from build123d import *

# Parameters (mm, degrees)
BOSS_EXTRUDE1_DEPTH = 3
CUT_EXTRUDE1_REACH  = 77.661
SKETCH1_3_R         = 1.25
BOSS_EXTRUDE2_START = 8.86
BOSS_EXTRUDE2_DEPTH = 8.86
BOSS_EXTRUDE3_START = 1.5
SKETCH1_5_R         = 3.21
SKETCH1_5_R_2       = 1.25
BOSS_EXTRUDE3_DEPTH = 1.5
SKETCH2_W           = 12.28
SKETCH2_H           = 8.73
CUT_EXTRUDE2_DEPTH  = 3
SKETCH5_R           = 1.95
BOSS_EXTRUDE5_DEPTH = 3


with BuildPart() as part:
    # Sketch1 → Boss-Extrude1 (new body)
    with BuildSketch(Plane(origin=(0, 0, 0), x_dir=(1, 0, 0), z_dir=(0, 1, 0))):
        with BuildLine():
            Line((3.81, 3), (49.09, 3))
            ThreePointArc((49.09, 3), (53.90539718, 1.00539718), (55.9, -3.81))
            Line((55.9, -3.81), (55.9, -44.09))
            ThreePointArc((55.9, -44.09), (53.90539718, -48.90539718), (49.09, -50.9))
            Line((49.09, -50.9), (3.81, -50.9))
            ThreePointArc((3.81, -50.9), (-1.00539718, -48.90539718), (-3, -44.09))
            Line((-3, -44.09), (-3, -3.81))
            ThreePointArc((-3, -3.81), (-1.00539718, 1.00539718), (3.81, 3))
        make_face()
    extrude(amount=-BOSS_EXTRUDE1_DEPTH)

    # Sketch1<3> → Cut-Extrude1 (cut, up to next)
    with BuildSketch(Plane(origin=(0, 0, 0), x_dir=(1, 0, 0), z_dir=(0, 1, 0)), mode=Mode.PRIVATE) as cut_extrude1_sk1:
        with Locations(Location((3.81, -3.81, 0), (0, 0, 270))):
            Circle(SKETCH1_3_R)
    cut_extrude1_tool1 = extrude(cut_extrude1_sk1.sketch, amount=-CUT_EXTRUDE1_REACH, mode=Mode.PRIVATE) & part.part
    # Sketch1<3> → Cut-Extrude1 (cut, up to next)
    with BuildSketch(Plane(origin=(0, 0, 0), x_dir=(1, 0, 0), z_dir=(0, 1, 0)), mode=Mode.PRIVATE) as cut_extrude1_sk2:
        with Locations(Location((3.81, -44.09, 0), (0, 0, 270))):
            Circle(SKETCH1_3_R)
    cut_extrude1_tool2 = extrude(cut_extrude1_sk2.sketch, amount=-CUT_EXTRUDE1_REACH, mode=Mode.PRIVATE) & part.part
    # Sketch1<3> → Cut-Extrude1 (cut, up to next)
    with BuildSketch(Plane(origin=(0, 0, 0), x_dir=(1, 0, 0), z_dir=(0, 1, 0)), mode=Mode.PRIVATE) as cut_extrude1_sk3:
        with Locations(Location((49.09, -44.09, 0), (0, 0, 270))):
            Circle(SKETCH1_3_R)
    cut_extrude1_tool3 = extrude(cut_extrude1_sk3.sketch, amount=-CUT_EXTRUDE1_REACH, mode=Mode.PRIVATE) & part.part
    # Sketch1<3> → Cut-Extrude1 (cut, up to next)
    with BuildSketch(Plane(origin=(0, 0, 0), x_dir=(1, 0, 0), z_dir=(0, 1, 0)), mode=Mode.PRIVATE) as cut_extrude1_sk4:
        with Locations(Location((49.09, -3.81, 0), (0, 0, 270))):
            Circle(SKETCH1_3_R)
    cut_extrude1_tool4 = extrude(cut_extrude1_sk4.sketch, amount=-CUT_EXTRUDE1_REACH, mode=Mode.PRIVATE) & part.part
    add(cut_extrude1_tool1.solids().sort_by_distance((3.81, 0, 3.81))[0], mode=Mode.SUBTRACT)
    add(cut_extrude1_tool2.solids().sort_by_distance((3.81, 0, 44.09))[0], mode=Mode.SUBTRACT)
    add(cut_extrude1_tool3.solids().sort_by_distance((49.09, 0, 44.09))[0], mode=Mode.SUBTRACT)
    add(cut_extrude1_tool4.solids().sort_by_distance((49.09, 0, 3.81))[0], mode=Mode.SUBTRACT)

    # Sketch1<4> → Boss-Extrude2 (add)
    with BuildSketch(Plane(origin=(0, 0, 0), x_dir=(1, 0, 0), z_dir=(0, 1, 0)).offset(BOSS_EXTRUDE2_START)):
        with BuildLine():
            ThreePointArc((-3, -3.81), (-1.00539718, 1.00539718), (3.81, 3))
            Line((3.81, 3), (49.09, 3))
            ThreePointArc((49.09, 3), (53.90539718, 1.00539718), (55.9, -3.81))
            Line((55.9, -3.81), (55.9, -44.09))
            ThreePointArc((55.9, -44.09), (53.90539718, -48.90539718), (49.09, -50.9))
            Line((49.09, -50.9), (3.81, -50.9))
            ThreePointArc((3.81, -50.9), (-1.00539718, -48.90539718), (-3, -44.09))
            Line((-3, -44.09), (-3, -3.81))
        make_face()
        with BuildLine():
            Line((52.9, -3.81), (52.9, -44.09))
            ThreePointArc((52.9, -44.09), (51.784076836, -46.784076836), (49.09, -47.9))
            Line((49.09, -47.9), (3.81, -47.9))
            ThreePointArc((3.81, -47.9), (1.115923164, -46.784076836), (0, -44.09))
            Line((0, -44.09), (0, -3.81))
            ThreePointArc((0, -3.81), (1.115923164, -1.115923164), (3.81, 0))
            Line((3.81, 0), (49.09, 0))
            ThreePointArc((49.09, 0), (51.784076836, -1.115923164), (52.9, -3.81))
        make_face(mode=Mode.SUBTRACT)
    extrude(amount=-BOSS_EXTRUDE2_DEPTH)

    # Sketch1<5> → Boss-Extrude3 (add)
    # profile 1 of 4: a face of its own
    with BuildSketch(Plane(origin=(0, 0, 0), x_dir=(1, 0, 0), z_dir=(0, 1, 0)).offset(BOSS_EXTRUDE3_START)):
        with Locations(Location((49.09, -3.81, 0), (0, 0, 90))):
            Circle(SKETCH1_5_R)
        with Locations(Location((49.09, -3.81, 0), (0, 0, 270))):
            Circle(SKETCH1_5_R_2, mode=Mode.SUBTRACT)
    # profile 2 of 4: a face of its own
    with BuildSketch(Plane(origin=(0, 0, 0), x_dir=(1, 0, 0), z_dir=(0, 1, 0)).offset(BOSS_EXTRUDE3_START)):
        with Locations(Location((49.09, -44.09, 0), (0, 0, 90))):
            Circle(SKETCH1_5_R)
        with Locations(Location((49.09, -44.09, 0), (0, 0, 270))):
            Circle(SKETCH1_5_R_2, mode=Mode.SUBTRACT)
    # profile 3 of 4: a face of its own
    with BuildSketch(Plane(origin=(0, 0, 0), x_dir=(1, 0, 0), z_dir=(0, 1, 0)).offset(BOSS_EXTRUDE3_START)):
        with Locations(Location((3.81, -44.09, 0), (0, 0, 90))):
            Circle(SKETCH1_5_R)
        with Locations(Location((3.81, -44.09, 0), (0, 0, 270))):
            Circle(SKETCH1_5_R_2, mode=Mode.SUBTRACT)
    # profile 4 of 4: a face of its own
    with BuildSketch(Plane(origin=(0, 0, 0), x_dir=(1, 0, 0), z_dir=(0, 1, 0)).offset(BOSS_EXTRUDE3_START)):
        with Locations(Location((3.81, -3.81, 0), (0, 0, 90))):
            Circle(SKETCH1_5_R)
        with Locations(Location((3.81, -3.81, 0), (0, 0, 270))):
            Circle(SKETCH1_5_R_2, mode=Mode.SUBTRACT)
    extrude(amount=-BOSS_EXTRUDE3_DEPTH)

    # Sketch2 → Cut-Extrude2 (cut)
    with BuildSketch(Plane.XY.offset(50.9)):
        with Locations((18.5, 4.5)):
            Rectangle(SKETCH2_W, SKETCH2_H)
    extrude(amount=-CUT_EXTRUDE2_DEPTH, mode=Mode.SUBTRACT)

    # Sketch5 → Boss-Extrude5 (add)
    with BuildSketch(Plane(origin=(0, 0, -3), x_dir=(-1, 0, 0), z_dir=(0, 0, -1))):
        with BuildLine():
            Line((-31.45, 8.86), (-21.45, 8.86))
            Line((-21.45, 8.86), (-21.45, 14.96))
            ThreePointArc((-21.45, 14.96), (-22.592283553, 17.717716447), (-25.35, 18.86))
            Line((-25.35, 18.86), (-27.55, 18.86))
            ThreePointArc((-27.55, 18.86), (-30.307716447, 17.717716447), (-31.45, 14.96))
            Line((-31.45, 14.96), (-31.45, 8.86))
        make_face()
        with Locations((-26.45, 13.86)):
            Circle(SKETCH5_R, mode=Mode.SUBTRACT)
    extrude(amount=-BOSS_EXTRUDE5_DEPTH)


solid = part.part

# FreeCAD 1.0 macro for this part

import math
import FreeCAD as App
import Part
import Sketcher

V = App.Vector
Q = App.Units.Quantity

doc = App.newDocument("Part")
body = doc.addObject("PartDesign::Body", "Body")

sketch1 = body.newObject("Sketcher::SketchObject", "Sketch")
sketch1.AttachmentSupport = (doc.getObject("XZ_Plane"), [""])
sketch1.MapMode = "FlatFace"
sketch1.addGeometry([
    Part.LineSegment(V(49, -3, 0), V(4, -3, 0)),
    Part.ArcOfCircle(Part.Circle(V(4, 4, 0), V(0, 0, 1), 7), math.radians(180), math.radians(270)),
    Part.LineSegment(V(-3, 4, 0), V(-3, 44, 0)),
    Part.ArcOfCircle(Part.Circle(V(4, 44, 0), V(0, 0, 1), 7), math.radians(90), math.radians(180)),
    Part.LineSegment(V(4, 51, 0), V(49, 51, 0)),
    Part.ArcOfCircle(Part.Circle(V(49, 44, 0), V(0, 0, 1), 7), math.radians(0), math.radians(90)),
    Part.LineSegment(V(56, 44, 0), V(56, 4, 0)),
    Part.ArcOfCircle(Part.Circle(V(49, 4, 0), V(0, 0, 1), 7), math.radians(-90), math.radians(0)),
], False)
sketch1.addConstraint([
    Sketcher.Constraint("Tangent", 0, 2, 1, 2),
    Sketcher.Constraint("Tangent", 1, 1, 2, 1),
    Sketcher.Constraint("Tangent", 2, 2, 3, 2),
    Sketcher.Constraint("Tangent", 3, 1, 4, 1),
    Sketcher.Constraint("Tangent", 4, 2, 5, 2),
    Sketcher.Constraint("Tangent", 5, 1, 6, 1),
    Sketcher.Constraint("Tangent", 6, 2, 7, 2),
    Sketcher.Constraint("Tangent", 7, 1, 0, 1),
    Sketcher.Constraint("Horizontal", 0),
    Sketcher.Constraint("Vertical", 2),
    Sketcher.Constraint("Horizontal", 4),
    Sketcher.Constraint("Vertical", 6),
    Sketcher.Constraint("Equal", 1, 3),
    Sketcher.Constraint("Equal", 3, 5),
    Sketcher.Constraint("Equal", 5, 7),
    Sketcher.Constraint("Radius", 1, Q("6.81 mm")),
    Sketcher.Constraint("DistanceY", 0, 2, -1, 1, Q("3 mm")),
    Sketcher.Constraint("DistanceX", 1, 1, -1, 1, Q("3 mm")),
    Sketcher.Constraint("DistanceX", 0, 2, 0, 1, Q("45.28 mm")),
    Sketcher.Constraint("DistanceY", 2, 1, 2, 2, Q("40.28 mm")),
])
pad1 = body.newObject("PartDesign::Pad", "Pad")
pad1.Profile = sketch1
pad1.Length = 3

sketch2 = body.newObject("Sketcher::SketchObject", "Sketch001")
sketch2.AttachmentSupport = (doc.getObject("XZ_Plane"), [""])
sketch2.MapMode = "FlatFace"
sketch2.addGeometry(Part.Circle(V(3.8, 3.8, 0), V(0, 0, 1), 1.2), False)
sketch2.addConstraint([
    Sketcher.Constraint("Diameter", 0, Q("2.5 mm")),
    Sketcher.Constraint("DistanceX", -1, 1, 0, 3, Q("3.81 mm")),
    Sketcher.Constraint("DistanceY", -1, 1, 0, 3, Q("3.81 mm")),
])
pocket1 = body.newObject("PartDesign::Pocket", "Pocket")
pocket1.Profile = sketch2
pocket1.Type = "UpToFirst"
pocket1.Reversed = True

sketch3 = body.newObject("Sketcher::SketchObject", "Sketch002")
sketch3.AttachmentSupport = (doc.getObject("XZ_Plane"), [""])
sketch3.MapMode = "FlatFace"
sketch3.addGeometry(Part.Circle(V(3.8, 44.1, 0), V(0, 0, 1), 1.2), False)
sketch3.addConstraint([
    Sketcher.Constraint("Diameter", 0, Q("2.5 mm")),
    Sketcher.Constraint("DistanceX", -1, 1, 0, 3, Q("3.81 mm")),
    Sketcher.Constraint("DistanceY", -1, 1, 0, 3, Q("44.09 mm")),
])
pocket2 = body.newObject("PartDesign::Pocket", "Pocket001")
pocket2.Profile = sketch3
pocket2.Type = "UpToFirst"
pocket2.Reversed = True

sketch4 = body.newObject("Sketcher::SketchObject", "Sketch003")
sketch4.AttachmentSupport = (doc.getObject("XZ_Plane"), [""])
sketch4.MapMode = "FlatFace"
sketch4.addGeometry(Part.Circle(V(49.1, 44.1, 0), V(0, 0, 1), 1.2), False)
sketch4.addConstraint([
    Sketcher.Constraint("Diameter", 0, Q("2.5 mm")),
    Sketcher.Constraint("DistanceX", -1, 1, 0, 3, Q("49.09 mm")),
    Sketcher.Constraint("DistanceY", -1, 1, 0, 3, Q("44.09 mm")),
])
pocket3 = body.newObject("PartDesign::Pocket", "Pocket002")
pocket3.Profile = sketch4
pocket3.Type = "UpToFirst"
pocket3.Reversed = True

sketch5 = body.newObject("Sketcher::SketchObject", "Sketch004")
sketch5.AttachmentSupport = (doc.getObject("XZ_Plane"), [""])
sketch5.MapMode = "FlatFace"
sketch5.addGeometry(Part.Circle(V(49.1, 3.8, 0), V(0, 0, 1), 1.2), False)
sketch5.addConstraint([
    Sketcher.Constraint("Diameter", 0, Q("2.5 mm")),
    Sketcher.Constraint("DistanceX", -1, 1, 0, 3, Q("49.09 mm")),
    Sketcher.Constraint("DistanceY", -1, 1, 0, 3, Q("3.81 mm")),
])
pocket4 = body.newObject("PartDesign::Pocket", "Pocket003")
pocket4.Profile = sketch5
pocket4.Type = "UpToFirst"
pocket4.Reversed = True

sketch6 = body.newObject("Sketcher::SketchObject", "Sketch005")
sketch6.AttachmentSupport = (doc.getObject("XZ_Plane"), [""])
sketch6.MapMode = "FlatFace"
sketch6.AttachmentOffset = App.Placement(V(0, 0, -8.86), App.Rotation())
sketch6.addGeometry([
    Part.ArcOfCircle(Part.Circle(V(3.8, 3.8, 0), V(0, 0, 1), 6.8), math.radians(180), math.radians(270)),
    Part.LineSegment(V(-3, 3.8, 0), V(-3, 44.1, 0)),
    Part.ArcOfCircle(Part.Circle(V(3.8, 44.1, 0), V(0, 0, 1), 6.8), math.radians(90), math.radians(180)),
    Part.LineSegment(V(3.8, 50.9, 0), V(49.1, 50.9, 0)),
    Part.ArcOfCircle(Part.Circle(V(49.1, 44.1, 0), V(0, 0, 1), 6.8), math.radians(0), math.radians(90)),
    Part.LineSegment(V(55.9, 44.1, 0), V(55.9, 3.8, 0)),
    Part.ArcOfCircle(Part.Circle(V(49.1, 3.8, 0), V(0, 0, 1), 6.8), math.radians(-90), math.radians(0)),
    Part.LineSegment(V(49.1, -3, 0), V(3.8, -3, 0)),
    Part.LineSegment(V(52.9, 3.8, 0), V(52.9, 44.1, 0)),
    Part.ArcOfCircle(Part.Circle(V(49.1, 44.1, 0), V(0, 0, 1), 3.8), math.radians(0), math.radians(90)),
    Part.LineSegment(V(49.1, 47.9, 0), V(3.8, 47.9, 0)),
    Part.ArcOfCircle(Part.Circle(V(3.8, 44.1, 0), V(0, 0, 1), 3.8), math.radians(90), math.radians(180)),
    Part.LineSegment(V(0, 44.1, 0), V(0, 3.8, 0)),
    Part.ArcOfCircle(Part.Circle(V(3.8, 3.8, 0), V(0, 0, 1), 3.8), math.radians(-180), math.radians(-90)),
    Part.LineSegment(V(3.8, 0, 0), V(49.1, 0, 0)),
    Part.ArcOfCircle(Part.Circle(V(49.1, 3.8, 0), V(0, 0, 1), 3.8), math.radians(-90), math.radians(0)),
], False)
sketch6.addConstraint([
    Sketcher.Constraint("Tangent", 0, 1, 1, 1),
    Sketcher.Constraint("Tangent", 1, 2, 2, 2),
    Sketcher.Constraint("Tangent", 2, 1, 3, 1),
    Sketcher.Constraint("Tangent", 3, 2, 4, 2),
    Sketcher.Constraint("Tangent", 4, 1, 5, 1),
    Sketcher.Constraint("Tangent", 5, 2, 6, 2),
    Sketcher.Constraint("Tangent", 6, 1, 7, 1),
    Sketcher.Constraint("Tangent", 7, 2, 0, 2),
    Sketcher.Constraint("Tangent", 8, 2, 9, 1),
    Sketcher.Constraint("Tangent", 9, 2, 10, 1),
    Sketcher.Constraint("Tangent", 10, 2, 11, 1),
    Sketcher.Constraint("Tangent", 11, 2, 12, 1),
    Sketcher.Constraint("Tangent", 12, 2, 13, 1),
    Sketcher.Constraint("Tangent", 13, 2, 14, 1),
    Sketcher.Constraint("Tangent", 14, 2, 15, 1),
    Sketcher.Constraint("Tangent", 15, 2, 8, 1),
    Sketcher.Constraint("Vertical", 1),
    Sketcher.Constraint("Horizontal", 3),
    Sketcher.Constraint("Vertical", 5),
    Sketcher.Constraint("Horizontal", 7),
    Sketcher.Constraint("Vertical", 8),
    Sketcher.Constraint("Horizontal", 10),
    Sketcher.Constraint("Vertical", 12),
    Sketcher.Constraint("Horizontal", 14),
    Sketcher.Constraint("Coincident", 9, 3, 4, 3),
    Sketcher.Constraint("Coincident", 11, 3, 2, 3),
    Sketcher.Constraint("Coincident", 13, 3, 0, 3),
    Sketcher.Constraint("Equal", 0, 2),
    Sketcher.Constraint("Equal", 2, 4),
    Sketcher.Constraint("Equal", 4, 6),
    Sketcher.Constraint("Equal", 13, 15),
    Sketcher.Constraint("PointOnObject", 11, 2, -2),
    Sketcher.Constraint("PointOnObject", 13, 2, -1),
    Sketcher.Constraint("Radius", 0, Q("6.81 mm")),
    Sketcher.Constraint("Radius", 9, Q("3.81 mm")),
    Sketcher.Constraint("DistanceX", 3, 1, 3, 2, Q("45.28 mm")),
    Sketcher.Constraint("DistanceY", 1, 1, 1, 2, Q("40.28 mm")),
])
pad2 = body.newObject("PartDesign::Pad", "Pad001")
pad2.Profile = sketch6
pad2.Length = 8.86

sketch7 = body.newObject("Sketcher::SketchObject", "Sketch006")
sketch7.AttachmentSupport = (doc.getObject("XZ_Plane"), [""])
sketch7.MapMode = "FlatFace"
sketch7.AttachmentOffset = App.Placement(V(0, 0, -1.5), App.Rotation())
sketch7.addGeometry([
    Part.Circle(V(49.1, 3.8, 0), V(0, 0, 1), 3.2),
    Part.Circle(V(49.1, 3.8, 0), V(0, 0, 1), 1.2),
    Part.Circle(V(49.1, 44.1, 0), V(0, 0, 1), 3.2),
    Part.Circle(V(49.1, 44.1, 0), V(0, 0, 1), 1.2),
    Part.Circle(V(3.8, 44.1, 0), V(0, 0, 1), 3.2),
    Part.Circle(V(3.8, 44.1, 0), V(0, 0, 1), 1.2),
    Part.Circle(V(3.8, 3.8, 0), V(0, 0, 1), 3.2),
    Part.Circle(V(3.8, 3.8, 0), V(0, 0, 1), 1.2),
], False)
sketch7.addConstraint([
    Sketcher.Constraint("Coincident", 1, 3, 0, 3),
    Sketcher.Constraint("Coincident", 3, 3, 2, 3),
    Sketcher.Constraint("Coincident", 5, 3, 4, 3),
    Sketcher.Constraint("Coincident", 7, 3, 6, 3),
    Sketcher.Constraint("Equal", 0, 2),
    Sketcher.Constraint("Equal", 1, 3),
    Sketcher.Constraint("Equal", 2, 4),
    Sketcher.Constraint("Equal", 3, 5),
    Sketcher.Constraint("Equal", 4, 6),
    Sketcher.Constraint("Equal", 5, 7),
    Sketcher.Constraint("Horizontal", 3, 3, 4, 3),
    Sketcher.Constraint("Horizontal", 1, 3, 6, 3),
    Sketcher.Constraint("Vertical", 1, 3, 2, 3),
    Sketcher.Constraint("Vertical", 5, 3, 6, 3),
    Sketcher.Constraint("Diameter", 1, Q("2.5 mm")),
    Sketcher.Constraint("Diameter", 0, Q("6.42 mm")),
    Sketcher.Constraint("DistanceX", -1, 1, 0, 3, Q("49.09 mm")),
    Sketcher.Constraint("DistanceY", -1, 1, 0, 3, Q("3.81 mm")),
    Sketcher.Constraint("DistanceY", -1, 1, 2, 3, Q("44.09 mm")),
    Sketcher.Constraint("DistanceX", -1, 1, 4, 3, Q("3.81 mm")),
])
pad3 = body.newObject("PartDesign::Pad", "Pad002")
pad3.Profile = sketch7
pad3.Length = 1.5

sketch8 = body.newObject("Sketcher::SketchObject", "Sketch007")
sketch8.AttachmentSupport = (doc.getObject("XY_Plane"), [""])
sketch8.MapMode = "FlatFace"
sketch8.AttachmentOffset = App.Placement(V(0, 0, 50.9), App.Rotation())
sketch8.addGeometry([
    Part.LineSegment(V(12, 9, 0), V(12, 0, 0)),
    Part.LineSegment(V(12, 0, 0), V(25, 0, 0)),
    Part.LineSegment(V(25, 0, 0), V(25, 9, 0)),
    Part.LineSegment(V(25, 9, 0), V(12, 9, 0)),
], False)
sketch8.addConstraint([
    Sketcher.Constraint("Coincident", 0, 2, 1, 1),
    Sketcher.Constraint("Coincident", 1, 2, 2, 1),
    Sketcher.Constraint("Coincident", 2, 2, 3, 1),
    Sketcher.Constraint("Coincident", 3, 2, 0, 1),
    Sketcher.Constraint("Vertical", 0),
    Sketcher.Constraint("Horizontal", 1),
    Sketcher.Constraint("Vertical", 2),
    Sketcher.Constraint("Horizontal", 3),
    Sketcher.Constraint("DistanceX", 1, 1, 1, 2, Q("12.28 mm")),
    Sketcher.Constraint("DistanceY", 0, 2, 0, 1, Q("8.73 mm")),
    Sketcher.Constraint("DistanceX", -1, 1, 0, 2, Q("12.36 mm")),
    Sketcher.Constraint("DistanceY", -1, 1, 0, 2, Q("0.135 mm")),
])
pocket5 = body.newObject("PartDesign::Pocket", "Pocket004")
pocket5.Profile = sketch8
pocket5.Length = 3

sketch9 = body.newObject("Sketcher::SketchObject", "Sketch008")
sketch9.AttachmentSupport = (doc.getObject("XY_Plane"), [""])
sketch9.MapMode = "FlatFace"
sketch9.AttachmentOffset = App.Placement(V(0, 0, -3), App.Rotation())
sketch9.addGeometry([
    Part.LineSegment(V(31.4, 8.9, 0), V(21.4, 8.9, 0)),
    Part.LineSegment(V(21.4, 8.9, 0), V(21.4, 15, 0)),
    Part.ArcOfCircle(Part.Circle(V(25.3, 15, 0), V(0, 0, 1), 3.9), math.radians(90), math.radians(180)),
    Part.LineSegment(V(25.4, 18.9, 0), V(27.6, 18.9, 0)),
    Part.ArcOfCircle(Part.Circle(V(27.6, 15, 0), V(0, 0, 1), 3.9), math.radians(0), math.radians(90)),
    Part.LineSegment(V(31.4, 15, 0), V(31.4, 8.9, 0)),
    Part.Circle(V(26.4, 13.9, 0), V(0, 0, 1), 1.9),
], False)
sketch9.addConstraint([
    Sketcher.Constraint("Coincident", 0, 2, 1, 1),
    Sketcher.Constraint("Tangent", 1, 2, 2, 2),
    Sketcher.Constraint("Tangent", 2, 1, 3, 1),
    Sketcher.Constraint("Tangent", 3, 2, 4, 2),
    Sketcher.Constraint("Tangent", 4, 1, 5, 1),
    Sketcher.Constraint("Coincident", 5, 2, 0, 1),
    Sketcher.Constraint("Horizontal", 0),
    Sketcher.Constraint("Vertical", 1),
    Sketcher.Constraint("Horizontal", 3),
    Sketcher.Constraint("Vertical", 5),
    Sketcher.Constraint("Equal", 2, 4),
    Sketcher.Constraint("Diameter", 6, Q("3.9 mm")),
    Sketcher.Constraint("Radius", 2, Q("3.9 mm")),
    Sketcher.Constraint("DistanceX", 0, 2, 0, 1, Q("10 mm")),
    Sketcher.Constraint("DistanceY", 1, 1, 1, 2, Q("6.1 mm")),
    Sketcher.Constraint("DistanceX", 0, 2, 6, 3, Q("5 mm")),
    Sketcher.Constraint("DistanceY", 0, 2, 6, 3, Q("5 mm")),
    Sketcher.Constraint("DistanceX", -1, 1, 2, 3, Q("25.35 mm")),
    Sketcher.Constraint("DistanceY", -1, 1, 2, 3, Q("14.96 mm")),
])
pad4 = body.newObject("PartDesign::Pad", "Pad003")
pad4.Profile = sketch9
pad4.Length = 3

doc.recompute()
